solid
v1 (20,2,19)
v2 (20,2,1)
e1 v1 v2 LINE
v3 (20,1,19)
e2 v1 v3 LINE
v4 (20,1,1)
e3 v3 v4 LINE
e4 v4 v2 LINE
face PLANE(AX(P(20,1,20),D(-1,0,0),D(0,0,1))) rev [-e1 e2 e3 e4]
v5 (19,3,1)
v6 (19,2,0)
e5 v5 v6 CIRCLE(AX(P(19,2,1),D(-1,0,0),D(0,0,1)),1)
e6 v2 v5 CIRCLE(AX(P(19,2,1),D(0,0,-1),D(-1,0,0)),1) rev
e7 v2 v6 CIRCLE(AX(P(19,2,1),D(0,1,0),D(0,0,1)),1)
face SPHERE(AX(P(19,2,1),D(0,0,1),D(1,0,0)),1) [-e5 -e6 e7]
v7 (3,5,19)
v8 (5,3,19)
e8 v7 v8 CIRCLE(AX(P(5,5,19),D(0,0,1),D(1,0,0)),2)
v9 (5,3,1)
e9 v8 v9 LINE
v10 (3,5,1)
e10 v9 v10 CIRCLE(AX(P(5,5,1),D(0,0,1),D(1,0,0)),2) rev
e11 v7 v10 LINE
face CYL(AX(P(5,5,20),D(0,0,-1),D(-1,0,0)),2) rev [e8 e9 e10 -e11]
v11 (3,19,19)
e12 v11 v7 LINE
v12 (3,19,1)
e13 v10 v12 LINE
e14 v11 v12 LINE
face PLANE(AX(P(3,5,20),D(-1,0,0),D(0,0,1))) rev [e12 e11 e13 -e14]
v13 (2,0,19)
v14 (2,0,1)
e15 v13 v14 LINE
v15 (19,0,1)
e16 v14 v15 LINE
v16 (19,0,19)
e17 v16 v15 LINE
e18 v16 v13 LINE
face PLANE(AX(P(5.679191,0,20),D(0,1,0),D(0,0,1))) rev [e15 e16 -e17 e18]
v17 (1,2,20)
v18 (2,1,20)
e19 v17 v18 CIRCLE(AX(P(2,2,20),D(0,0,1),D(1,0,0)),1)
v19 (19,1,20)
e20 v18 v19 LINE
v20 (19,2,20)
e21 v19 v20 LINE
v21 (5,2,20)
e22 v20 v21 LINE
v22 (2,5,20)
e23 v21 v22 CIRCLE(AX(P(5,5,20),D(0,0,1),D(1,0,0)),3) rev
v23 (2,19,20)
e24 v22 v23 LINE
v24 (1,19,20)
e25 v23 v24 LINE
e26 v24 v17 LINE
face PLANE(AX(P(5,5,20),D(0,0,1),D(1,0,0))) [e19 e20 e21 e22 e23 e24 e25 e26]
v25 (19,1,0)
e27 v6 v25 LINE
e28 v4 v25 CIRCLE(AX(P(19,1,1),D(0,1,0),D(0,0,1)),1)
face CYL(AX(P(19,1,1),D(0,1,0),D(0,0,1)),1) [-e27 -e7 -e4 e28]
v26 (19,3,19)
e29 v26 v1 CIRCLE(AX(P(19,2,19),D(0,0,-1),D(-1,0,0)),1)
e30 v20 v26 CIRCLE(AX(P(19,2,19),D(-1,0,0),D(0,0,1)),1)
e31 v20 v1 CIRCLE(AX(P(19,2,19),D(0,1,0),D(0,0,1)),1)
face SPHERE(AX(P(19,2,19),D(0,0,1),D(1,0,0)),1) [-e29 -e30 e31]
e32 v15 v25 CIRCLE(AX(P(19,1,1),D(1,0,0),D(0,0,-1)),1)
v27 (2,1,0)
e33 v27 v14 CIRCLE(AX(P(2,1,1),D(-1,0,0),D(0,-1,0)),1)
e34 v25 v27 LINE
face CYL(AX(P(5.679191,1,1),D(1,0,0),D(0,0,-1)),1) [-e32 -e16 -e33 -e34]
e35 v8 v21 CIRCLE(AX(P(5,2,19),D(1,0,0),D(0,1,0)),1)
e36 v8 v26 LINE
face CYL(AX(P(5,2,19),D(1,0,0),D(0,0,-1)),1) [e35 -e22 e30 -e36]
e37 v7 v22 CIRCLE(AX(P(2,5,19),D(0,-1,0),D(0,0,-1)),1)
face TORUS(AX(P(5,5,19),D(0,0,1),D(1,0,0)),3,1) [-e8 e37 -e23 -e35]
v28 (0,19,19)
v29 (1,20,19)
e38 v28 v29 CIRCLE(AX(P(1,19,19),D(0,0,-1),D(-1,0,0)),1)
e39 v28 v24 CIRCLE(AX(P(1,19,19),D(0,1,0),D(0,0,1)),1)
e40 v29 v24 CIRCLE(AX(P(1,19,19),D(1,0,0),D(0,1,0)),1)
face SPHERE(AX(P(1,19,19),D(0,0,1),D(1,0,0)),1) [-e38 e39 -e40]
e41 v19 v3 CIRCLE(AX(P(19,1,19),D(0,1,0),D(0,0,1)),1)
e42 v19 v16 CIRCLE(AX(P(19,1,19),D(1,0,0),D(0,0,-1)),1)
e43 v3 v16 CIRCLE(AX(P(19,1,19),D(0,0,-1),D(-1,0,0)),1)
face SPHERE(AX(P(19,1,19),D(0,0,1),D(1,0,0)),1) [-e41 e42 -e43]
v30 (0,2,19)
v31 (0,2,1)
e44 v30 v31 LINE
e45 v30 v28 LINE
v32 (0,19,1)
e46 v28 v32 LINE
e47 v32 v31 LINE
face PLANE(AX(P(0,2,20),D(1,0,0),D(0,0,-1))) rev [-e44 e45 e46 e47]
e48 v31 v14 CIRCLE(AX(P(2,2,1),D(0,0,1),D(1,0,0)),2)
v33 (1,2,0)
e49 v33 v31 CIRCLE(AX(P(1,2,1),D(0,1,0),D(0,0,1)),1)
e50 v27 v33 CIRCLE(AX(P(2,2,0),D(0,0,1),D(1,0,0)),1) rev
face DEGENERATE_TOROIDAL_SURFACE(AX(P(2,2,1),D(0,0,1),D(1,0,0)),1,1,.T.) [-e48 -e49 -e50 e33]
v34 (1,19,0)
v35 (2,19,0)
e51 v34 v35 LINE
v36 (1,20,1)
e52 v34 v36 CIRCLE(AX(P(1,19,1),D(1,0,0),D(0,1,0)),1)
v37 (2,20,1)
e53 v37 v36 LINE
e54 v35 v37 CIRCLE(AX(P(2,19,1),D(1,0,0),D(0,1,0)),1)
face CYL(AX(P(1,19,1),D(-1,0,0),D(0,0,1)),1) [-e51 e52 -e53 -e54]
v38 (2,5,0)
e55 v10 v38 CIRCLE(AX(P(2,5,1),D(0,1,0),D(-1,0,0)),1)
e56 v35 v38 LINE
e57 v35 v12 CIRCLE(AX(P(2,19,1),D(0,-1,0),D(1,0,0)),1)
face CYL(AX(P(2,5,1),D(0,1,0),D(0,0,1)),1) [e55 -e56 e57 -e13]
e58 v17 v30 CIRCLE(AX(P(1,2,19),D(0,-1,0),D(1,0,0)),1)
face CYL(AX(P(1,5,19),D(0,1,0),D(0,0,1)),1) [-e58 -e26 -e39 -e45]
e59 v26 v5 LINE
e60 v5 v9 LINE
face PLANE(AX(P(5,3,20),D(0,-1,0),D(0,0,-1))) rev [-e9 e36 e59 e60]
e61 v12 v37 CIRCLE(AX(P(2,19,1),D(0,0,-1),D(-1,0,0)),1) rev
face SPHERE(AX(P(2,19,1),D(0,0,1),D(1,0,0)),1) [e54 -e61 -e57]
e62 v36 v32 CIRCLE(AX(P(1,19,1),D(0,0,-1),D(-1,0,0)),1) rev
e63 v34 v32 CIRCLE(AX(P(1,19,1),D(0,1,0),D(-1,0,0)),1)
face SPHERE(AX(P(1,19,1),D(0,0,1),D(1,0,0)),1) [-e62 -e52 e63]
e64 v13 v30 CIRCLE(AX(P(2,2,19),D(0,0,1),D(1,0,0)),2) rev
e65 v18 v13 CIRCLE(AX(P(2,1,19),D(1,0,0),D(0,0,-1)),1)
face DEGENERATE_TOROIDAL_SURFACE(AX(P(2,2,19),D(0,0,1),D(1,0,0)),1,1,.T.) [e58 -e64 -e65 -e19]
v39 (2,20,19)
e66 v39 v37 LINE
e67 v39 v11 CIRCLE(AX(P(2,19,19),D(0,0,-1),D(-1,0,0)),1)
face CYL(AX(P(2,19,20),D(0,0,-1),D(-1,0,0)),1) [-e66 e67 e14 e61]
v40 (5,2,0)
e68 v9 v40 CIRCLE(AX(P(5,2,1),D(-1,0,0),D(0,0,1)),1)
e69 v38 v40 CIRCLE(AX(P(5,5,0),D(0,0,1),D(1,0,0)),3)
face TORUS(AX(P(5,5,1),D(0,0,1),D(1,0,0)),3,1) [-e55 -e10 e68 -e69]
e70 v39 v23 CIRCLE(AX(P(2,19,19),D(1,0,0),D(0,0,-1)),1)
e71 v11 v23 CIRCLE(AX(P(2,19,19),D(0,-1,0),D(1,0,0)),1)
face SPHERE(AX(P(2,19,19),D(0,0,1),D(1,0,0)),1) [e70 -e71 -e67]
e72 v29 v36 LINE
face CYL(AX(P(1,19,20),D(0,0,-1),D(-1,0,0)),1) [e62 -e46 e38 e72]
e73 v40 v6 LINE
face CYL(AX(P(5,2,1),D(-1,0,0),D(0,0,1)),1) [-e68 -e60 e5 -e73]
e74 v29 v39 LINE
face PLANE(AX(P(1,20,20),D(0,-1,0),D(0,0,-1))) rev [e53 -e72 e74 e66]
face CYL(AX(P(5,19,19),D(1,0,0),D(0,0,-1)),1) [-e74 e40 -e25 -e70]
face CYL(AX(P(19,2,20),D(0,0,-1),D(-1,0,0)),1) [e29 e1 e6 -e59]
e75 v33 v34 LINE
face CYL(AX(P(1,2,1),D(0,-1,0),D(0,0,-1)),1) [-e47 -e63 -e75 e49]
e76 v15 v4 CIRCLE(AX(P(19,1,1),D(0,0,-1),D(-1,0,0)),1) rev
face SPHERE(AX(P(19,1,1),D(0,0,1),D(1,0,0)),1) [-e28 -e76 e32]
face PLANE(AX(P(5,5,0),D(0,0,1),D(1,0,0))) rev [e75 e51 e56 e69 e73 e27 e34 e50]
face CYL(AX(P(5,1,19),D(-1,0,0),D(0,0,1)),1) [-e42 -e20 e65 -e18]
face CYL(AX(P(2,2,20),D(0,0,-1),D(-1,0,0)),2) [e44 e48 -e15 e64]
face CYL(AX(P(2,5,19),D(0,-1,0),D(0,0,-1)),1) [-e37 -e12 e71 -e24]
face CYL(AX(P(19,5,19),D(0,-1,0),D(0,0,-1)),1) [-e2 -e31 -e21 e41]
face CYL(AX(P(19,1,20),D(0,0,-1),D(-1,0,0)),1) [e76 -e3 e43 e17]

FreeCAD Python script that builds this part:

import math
import FreeCAD as App
import Part
import Sketcher

V = App.Vector


def edges_at(feature, points):
    """Names of the edges that pass closest to the given points."""
    edges = feature.Shape.Edges
    near = lambda p: min(range(len(edges)), key=lambda i: edges[i].distToShape(Part.Vertex(*p))[0])
    return sorted({f"Edge{near(p) + 1}" for p in points})

doc = App.newDocument("Part")
params = doc.addObject("Spreadsheet::Sheet", "Params")
for row, (alias, value) in enumerate([
    ("sketch1_radius", "1 mm"),
    ("sketch1_radius2", "2 mm"),
    ("sketch1_width", "14 mm"),
    ("pad1_length", "20 mm"),
    ("fillet_radius", "1 mm"),
], start=1):
    params.set(f"A{row}", alias)
    params.set(f"B{row}", "=" + value)
    params.setAlias(f"B{row}", alias)

body = doc.addObject("PartDesign::Body", "Body")

sketch1 = body.newObject("Sketcher::SketchObject", "Sketch")
sketch1.AttachmentSupport = (doc.getObject("XY_Plane"), [""])
sketch1.MapMode = "FlatFace"
sketch1.addGeometry(Part.ArcOfCircle(Part.Circle(V(19, 1, 0), V(0, 0, 1), 1), math.radians(-90), math.radians(0)), False)
sketch1.addGeometry(Part.LineSegment(V(20, 1, 0), V(20, 2, 0)), False)
sketch1.addGeometry(Part.ArcOfCircle(Part.Circle(V(19, 2, 0), V(0, 0, 1), 1), math.radians(0), math.radians(90)), False)
sketch1.addGeometry(Part.LineSegment(V(19, 3, 0), V(5, 3, 0)), False)
sketch1.addGeometry(Part.ArcOfCircle(Part.Circle(V(5, 5, 0), V(0, 0, 1), 2), math.radians(-180), math.radians(-90)), False)
sketch1.addGeometry(Part.LineSegment(V(3, 5, 0), V(3, 19, 0)), False)
sketch1.addGeometry(Part.ArcOfCircle(Part.Circle(V(2, 19, 0), V(0, 0, 1), 1), math.radians(0), math.radians(90)), False)
sketch1.addGeometry(Part.LineSegment(V(2, 20, 0), V(1, 20, 0)), False)
sketch1.addGeometry(Part.ArcOfCircle(Part.Circle(V(1, 19, 0), V(0, 0, 1), 1), math.radians(90), math.radians(180)), False)
sketch1.addGeometry(Part.LineSegment(V(0, 19, 0), V(0, 2, 0)), False)
sketch1.addGeometry(Part.ArcOfCircle(Part.Circle(V(2, 2, 0), V(0, 0, 1), 2), math.radians(-180), math.radians(-90)), False)
sketch1.addGeometry(Part.LineSegment(V(2, 0, 0), V(19, 0, 0)), False)
sketch1.addConstraint(Sketcher.Constraint("Tangent", 0, 2, 1, 1))
sketch1.addConstraint(Sketcher.Constraint("Tangent", 1, 2, 2, 1))
sketch1.addConstraint(Sketcher.Constraint("Tangent", 2, 2, 3, 1))
sketch1.addConstraint(Sketcher.Constraint("Tangent", 3, 2, 4, 2))
sketch1.addConstraint(Sketcher.Constraint("Tangent", 4, 1, 5, 1))
sketch1.addConstraint(Sketcher.Constraint("Tangent", 5, 2, 6, 1))
sketch1.addConstraint(Sketcher.Constraint("Tangent", 6, 2, 7, 1))
sketch1.addConstraint(Sketcher.Constraint("Tangent", 7, 2, 8, 1))
sketch1.addConstraint(Sketcher.Constraint("Tangent", 8, 2, 9, 1))
sketch1.addConstraint(Sketcher.Constraint("Tangent", 9, 2, 10, 1))
sketch1.addConstraint(Sketcher.Constraint("Tangent", 10, 2, 11, 1))
sketch1.addConstraint(Sketcher.Constraint("Tangent", 11, 2, 0, 1))
sketch1.addConstraint(Sketcher.Constraint("Vertical", 1))
sketch1.addConstraint(Sketcher.Constraint("Horizontal", 3))
sketch1.addConstraint(Sketcher.Constraint("Vertical", 5))
sketch1.addConstraint(Sketcher.Constraint("Horizontal", 7))
sketch1.addConstraint(Sketcher.Constraint("Vertical", 9))
sketch1.addConstraint(Sketcher.Constraint("Horizontal", 11))
sketch1.addConstraint(Sketcher.Constraint("Equal", 0, 2))
sketch1.addConstraint(Sketcher.Constraint("Equal", 2, 6))
sketch1.addConstraint(Sketcher.Constraint("Equal", 6, 8))
sketch1.addConstraint(Sketcher.Constraint("Equal", 4, 10))
sketch1.addConstraint(Sketcher.Constraint("PointOnObject", 8, 2, -2))
sketch1.addConstraint(Sketcher.Constraint("PointOnObject", 10, 2, -1))
sketch1.addConstraint(Sketcher.Constraint("Horizontal", 2, 3, 10, 3))
sketch1.addConstraint(Sketcher.Constraint("Vertical", 6, 3, 10, 3))
sketch1.addConstraint(Sketcher.Constraint("Equal", 3, 5))
sketch1.addConstraint(Sketcher.Constraint("Radius", 0, 1.0))
sketch1.addConstraint(Sketcher.Constraint("Radius", 4, 2.0))
sketch1.addConstraint(Sketcher.Constraint("DistanceX", 3, 2, 3, 1, 14.0))
sketch1.setExpression("Constraints[27]", "Params.sketch1_radius")
sketch1.setExpression("Constraints[28]", "Params.sketch1_radius2")
sketch1.setExpression("Constraints[29]", "Params.sketch1_width")
pad1 = body.newObject("PartDesign::Pad", "Pad")
pad1.Profile = sketch1
pad1.setExpression("Length", "Params.pad1_length")
doc.recompute()

fillet = body.newObject("PartDesign::Fillet", "Fillet")
fillet.Base = (pad1, edges_at(pad1, [
    (2.707, 19.707, 20),
    (12, 3, 0),
    (19.707, 2.707, 0),
    (20, 1.5, 0),
    (19.707, 0.293, 0),
    (10.5, 0, 0),
    (0.586, 0.586, 0),
    (0, 10.5, 0),
    (0.293, 19.707, 0),
    (1.5, 20, 0),
    (1.5, 20, 20),
    (2.707, 19.707, 0),
    (3, 12, 0),
    (3.586, 3.586, 0),
    (0.293, 19.707, 20),
    (0, 10.5, 20),
    (0.586, 0.586, 20),
    (10.5, 0, 20),
    (19.707, 0.293, 20),
    (20, 1.5, 20),
    (19.707, 2.707, 20),
    (3.586, 3.586, 20),
    (12, 3, 20),
    (3, 12, 20),
]))
fillet.setExpression("Radius", "Params.fillet_radius")

doc.recompute()
